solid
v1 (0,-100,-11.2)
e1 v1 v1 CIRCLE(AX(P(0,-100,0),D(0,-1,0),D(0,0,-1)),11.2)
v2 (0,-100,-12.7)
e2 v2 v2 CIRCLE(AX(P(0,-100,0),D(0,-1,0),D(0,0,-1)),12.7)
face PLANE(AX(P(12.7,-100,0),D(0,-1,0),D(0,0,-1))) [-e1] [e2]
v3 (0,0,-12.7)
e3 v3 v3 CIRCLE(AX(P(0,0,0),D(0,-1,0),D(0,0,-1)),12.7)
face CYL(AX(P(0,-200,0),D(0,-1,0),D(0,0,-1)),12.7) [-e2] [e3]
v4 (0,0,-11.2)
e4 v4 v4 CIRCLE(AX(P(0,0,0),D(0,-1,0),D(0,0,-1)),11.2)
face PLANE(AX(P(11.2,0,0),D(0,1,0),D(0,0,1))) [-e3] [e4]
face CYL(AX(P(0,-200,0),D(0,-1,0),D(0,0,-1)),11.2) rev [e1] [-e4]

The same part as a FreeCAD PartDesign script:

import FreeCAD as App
import Part
import Sketcher
from FreeCAD import Vector
Q = App.Units.Quantity


def add_polygon(sketch, points):
    """Adds a closed chain of lines whose ends are joined by coincident constraints."""
    first, n = sketch.GeometryCount, len(points)
    for a, b in zip(points, points[1:] + points[:1]):
        sketch.addGeometry(Part.LineSegment(App.Vector(*a, 0), App.Vector(*b, 0)), False)
    for i in range(n):
        sketch.addConstraint(Sketcher.Constraint("Coincident", first + i, 2, first + (i + 1) % n, 1))

doc = App.newDocument("Part")
body = doc.addObject("PartDesign::Body", "Body")

# Sketch on XY plane
sketch1 = body.newObject("Sketcher::SketchObject", "Sketch")
sketch1.AttachmentSupport = (doc.getObject("XY_Plane"), [""])
sketch1.MapMode = "FlatFace"
add_polygon(sketch1, [(11.2, 0), (11.2, -100), (12.7, -100), (12.7, 0)])  # lines 0-3
sketch1.addConstraint([
    Sketcher.Constraint("Vertical", 0),
    Sketcher.Constraint("Horizontal", 1),
    Sketcher.Constraint("Vertical", 2),
    Sketcher.Constraint("Horizontal", 3),
    Sketcher.Constraint("PointOnObject", 2, 2, -1),
    Sketcher.Constraint("DistanceY", 0, 2, 0, 1, Q("100 mm")),
    Sketcher.Constraint("DistanceX", 1, 1, 1, 2, Q("1.5 mm")),
    Sketcher.Constraint("DistanceX", -1, 1, 0, 2, Q("11.2 mm")),
])
revolution = body.newObject("PartDesign::Revolution", "Revolution")
revolution.Profile = sketch1
revolution.ReferenceAxis = (sketch1, ["V_Axis"])
revolution.Angle = 360

doc.recompute()
